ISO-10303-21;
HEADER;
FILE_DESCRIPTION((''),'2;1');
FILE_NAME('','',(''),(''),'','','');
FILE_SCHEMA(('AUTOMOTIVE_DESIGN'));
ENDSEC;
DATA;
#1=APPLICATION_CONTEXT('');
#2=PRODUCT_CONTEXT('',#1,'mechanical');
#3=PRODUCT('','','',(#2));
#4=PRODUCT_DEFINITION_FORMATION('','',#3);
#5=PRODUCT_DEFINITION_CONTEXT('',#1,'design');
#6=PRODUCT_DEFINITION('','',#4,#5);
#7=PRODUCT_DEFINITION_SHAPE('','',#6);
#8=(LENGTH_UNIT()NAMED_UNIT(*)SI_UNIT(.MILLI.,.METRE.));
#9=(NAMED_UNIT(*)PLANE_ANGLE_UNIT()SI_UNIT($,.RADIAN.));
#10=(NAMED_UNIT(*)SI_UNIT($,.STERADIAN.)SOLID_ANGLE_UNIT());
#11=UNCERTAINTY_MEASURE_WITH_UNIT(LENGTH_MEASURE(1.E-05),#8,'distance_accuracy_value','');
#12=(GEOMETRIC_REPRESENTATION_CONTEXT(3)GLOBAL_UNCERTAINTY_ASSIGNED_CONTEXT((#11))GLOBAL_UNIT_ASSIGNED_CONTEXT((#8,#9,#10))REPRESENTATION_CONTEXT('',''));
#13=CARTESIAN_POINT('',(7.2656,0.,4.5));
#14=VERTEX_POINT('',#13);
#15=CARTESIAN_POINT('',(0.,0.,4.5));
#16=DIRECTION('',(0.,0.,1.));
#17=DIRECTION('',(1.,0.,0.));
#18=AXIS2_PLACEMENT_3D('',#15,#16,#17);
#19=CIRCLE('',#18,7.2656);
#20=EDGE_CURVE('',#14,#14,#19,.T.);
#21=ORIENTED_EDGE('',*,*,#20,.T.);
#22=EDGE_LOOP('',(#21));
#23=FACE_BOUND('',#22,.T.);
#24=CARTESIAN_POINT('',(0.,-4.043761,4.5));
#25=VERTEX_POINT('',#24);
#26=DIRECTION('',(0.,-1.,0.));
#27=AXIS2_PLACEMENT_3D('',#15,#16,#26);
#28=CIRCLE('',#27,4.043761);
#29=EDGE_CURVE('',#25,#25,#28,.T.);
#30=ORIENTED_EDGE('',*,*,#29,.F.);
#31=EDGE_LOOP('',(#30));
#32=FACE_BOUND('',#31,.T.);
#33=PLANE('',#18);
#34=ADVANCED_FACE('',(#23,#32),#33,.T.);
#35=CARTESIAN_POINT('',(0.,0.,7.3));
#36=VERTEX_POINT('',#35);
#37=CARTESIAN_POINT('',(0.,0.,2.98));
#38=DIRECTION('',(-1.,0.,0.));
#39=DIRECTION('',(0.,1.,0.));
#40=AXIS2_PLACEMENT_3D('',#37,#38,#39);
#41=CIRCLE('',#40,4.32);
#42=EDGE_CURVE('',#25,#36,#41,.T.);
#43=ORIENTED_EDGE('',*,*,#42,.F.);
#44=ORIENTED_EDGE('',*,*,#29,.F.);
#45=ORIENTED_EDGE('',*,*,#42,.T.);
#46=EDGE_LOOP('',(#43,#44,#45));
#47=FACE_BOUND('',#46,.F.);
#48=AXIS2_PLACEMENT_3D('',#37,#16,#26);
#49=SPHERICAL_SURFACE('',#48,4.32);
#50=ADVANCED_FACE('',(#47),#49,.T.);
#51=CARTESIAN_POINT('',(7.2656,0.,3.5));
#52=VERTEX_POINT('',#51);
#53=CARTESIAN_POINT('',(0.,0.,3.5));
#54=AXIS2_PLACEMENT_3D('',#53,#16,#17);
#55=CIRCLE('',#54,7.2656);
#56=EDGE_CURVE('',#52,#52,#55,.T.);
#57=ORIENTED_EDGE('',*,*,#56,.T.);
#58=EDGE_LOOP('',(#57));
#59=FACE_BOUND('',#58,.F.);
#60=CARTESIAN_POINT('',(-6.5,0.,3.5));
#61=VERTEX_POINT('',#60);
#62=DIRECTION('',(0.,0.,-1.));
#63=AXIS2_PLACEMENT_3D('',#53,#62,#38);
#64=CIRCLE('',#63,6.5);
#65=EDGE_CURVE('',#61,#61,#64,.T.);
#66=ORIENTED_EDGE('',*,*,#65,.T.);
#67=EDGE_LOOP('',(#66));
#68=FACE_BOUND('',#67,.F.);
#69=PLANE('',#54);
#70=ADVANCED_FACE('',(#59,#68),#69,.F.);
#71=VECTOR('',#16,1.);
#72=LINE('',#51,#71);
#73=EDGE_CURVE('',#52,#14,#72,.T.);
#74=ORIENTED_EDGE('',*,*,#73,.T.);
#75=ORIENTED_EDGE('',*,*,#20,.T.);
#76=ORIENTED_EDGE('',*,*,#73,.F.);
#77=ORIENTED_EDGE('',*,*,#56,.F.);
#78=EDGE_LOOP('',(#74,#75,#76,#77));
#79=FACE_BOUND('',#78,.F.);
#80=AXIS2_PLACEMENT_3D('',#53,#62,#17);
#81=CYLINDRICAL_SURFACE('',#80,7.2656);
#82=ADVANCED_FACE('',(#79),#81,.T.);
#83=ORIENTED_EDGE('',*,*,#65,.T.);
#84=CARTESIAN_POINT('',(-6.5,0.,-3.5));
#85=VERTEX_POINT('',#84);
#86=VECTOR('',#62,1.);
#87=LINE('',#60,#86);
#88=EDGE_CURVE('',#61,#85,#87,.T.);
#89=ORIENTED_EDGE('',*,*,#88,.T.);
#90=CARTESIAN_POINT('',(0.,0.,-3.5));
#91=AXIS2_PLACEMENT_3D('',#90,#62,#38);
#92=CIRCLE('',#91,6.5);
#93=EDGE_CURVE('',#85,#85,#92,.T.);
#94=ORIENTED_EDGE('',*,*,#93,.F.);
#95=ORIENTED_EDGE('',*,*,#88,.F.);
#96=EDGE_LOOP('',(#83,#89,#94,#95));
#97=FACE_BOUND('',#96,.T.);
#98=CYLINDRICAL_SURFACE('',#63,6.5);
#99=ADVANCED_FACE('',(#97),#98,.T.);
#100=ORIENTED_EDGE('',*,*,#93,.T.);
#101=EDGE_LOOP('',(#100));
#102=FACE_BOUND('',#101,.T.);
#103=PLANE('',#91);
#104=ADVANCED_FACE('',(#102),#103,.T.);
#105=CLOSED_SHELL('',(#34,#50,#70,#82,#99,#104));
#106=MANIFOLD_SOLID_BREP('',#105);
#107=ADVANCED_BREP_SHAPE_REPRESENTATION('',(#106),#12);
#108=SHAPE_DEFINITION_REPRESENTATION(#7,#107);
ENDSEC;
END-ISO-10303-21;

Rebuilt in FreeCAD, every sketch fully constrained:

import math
import FreeCAD as App
import Part
import Sketcher

V = App.Vector
Q = App.Units.Quantity

doc = App.newDocument("Part")
body = doc.addObject("PartDesign::Body", "Body")

# Sketch on XZ plane
sketch1 = body.newObject("Sketcher::SketchObject", "Sketch")
sketch1.AttachmentSupport = (doc.getObject("XZ_Plane"), [""])
sketch1.MapMode = "FlatFace"
sketch1.addGeometry([
    Part.LineSegment(V(0, 4, 0), V(-6, 4, 0)),
    Part.LineSegment(V(-6, 4, 0), V(-6, -4, 0)),
    Part.LineSegment(V(-6, -4, 0), V(0, -4, 0)),
    Part.LineSegment(V(0, -4, 0), V(0, 4, 0)),
], False)
sketch1.addConstraint([
    Sketcher.Constraint("Coincident", 0, 2, 1, 1),
    Sketcher.Constraint("Coincident", 1, 2, 2, 1),
    Sketcher.Constraint("Coincident", 2, 2, 3, 1),
    Sketcher.Constraint("Coincident", 3, 2, 0, 1),
    Sketcher.Constraint("Horizontal", 0),
    Sketcher.Constraint("Vertical", 1),
    Sketcher.Constraint("Horizontal", 2),
    Sketcher.Constraint("Vertical", 3),
    Sketcher.Constraint("Symmetric", 2, 2, 3, 2, -1, 1),
    Sketcher.Constraint("DistanceY", 1, 2, 1, 1, Q("7 mm")),
    Sketcher.Constraint("DistanceX", 0, 2, 0, 1, Q("6.5 mm")),
])
revolution = body.newObject("PartDesign::Revolution", "Revolution")
revolution.Profile = sketch1
revolution.ReferenceAxis = (sketch1, ["V_Axis"])
revolution.Angle = 360

# Sketch on XY plane
sketch2 = body.newObject("Sketcher::SketchObject", "Sketch001")
sketch2.AttachmentSupport = (doc.getObject("XY_Plane"), [""])
sketch2.MapMode = "FlatFace"
sketch2.AttachmentOffset = App.Placement(V(0, 0, 3.5), App.Rotation())
sketch2.addGeometry(Part.Circle(V(0, 0, 0), V(0, 0, 1), 7), False)
sketch2.addConstraint([
    Sketcher.Constraint("Coincident", 0, 3, -1, 1),
    Sketcher.Constraint("Diameter", 0, Q("14.5312 mm")),
])
pad1 = body.newObject("PartDesign::Pad", "Pad")
pad1.Profile = sketch2
pad1.Length = 1

# Sketch on YZ plane
sketch3 = body.newObject("Sketcher::SketchObject", "Sketch002")
sketch3.AttachmentSupport = (doc.getObject("YZ_Plane"), [""])
sketch3.MapMode = "FlatFace"
sketch3.addGeometry([
    Part.LineSegment(V(0, -1.3, 0), V(0, 7.3, 0)),
    Part.ArcOfCircle(Part.Circle(V(0, 3, 0), V(0, 0, 1), 4.3), math.radians(90), math.radians(270)),
], False)
sketch3.addConstraint([
    Sketcher.Constraint("Coincident", 0, 1, 1, 2),
    Sketcher.Constraint("Coincident", 1, 1, 0, 2),
    Sketcher.Constraint("Vertical", 0),
    Sketcher.Constraint("PointOnObject", 1, 3, -2),
    Sketcher.Constraint("PointOnObject", 0, 1, -2),
    Sketcher.Constraint("Radius", 1, Q("4.32 mm")),
    Sketcher.Constraint("DistanceY", -1, 1, 1, 1, Q("7.3 mm")),
])
revolution2 = body.newObject("PartDesign::Revolution", "Revolution001")
revolution2.Profile = sketch3
revolution2.ReferenceAxis = (sketch3, ["V_Axis"])
revolution2.Angle = 360

doc.recompute()
